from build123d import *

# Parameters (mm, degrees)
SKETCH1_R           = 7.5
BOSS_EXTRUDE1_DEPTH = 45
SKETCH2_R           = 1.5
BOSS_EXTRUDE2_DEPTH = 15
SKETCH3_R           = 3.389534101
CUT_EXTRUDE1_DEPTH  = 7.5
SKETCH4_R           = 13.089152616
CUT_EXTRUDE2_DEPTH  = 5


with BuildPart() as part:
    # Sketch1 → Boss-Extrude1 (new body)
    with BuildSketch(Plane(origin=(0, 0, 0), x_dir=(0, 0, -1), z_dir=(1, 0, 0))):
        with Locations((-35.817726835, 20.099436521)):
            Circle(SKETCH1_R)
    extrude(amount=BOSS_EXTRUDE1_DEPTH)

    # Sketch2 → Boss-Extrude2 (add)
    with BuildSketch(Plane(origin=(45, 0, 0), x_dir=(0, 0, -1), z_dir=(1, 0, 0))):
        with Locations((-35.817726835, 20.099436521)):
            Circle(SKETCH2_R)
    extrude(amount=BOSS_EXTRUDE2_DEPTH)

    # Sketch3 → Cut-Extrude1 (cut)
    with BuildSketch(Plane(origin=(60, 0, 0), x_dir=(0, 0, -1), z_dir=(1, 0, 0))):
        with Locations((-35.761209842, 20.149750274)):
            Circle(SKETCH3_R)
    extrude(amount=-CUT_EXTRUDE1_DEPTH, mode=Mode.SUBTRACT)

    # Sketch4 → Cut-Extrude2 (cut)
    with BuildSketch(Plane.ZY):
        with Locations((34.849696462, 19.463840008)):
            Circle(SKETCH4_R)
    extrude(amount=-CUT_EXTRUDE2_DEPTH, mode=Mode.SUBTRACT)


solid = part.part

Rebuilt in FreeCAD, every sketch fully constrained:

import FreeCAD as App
import Part
import Sketcher

doc = App.newDocument("Part")
body = doc.addObject("PartDesign::Body", "Body")

sketch1 = doc.addObject("Sketcher::SketchObject", "Sketch")
body.addObject(sketch1)
sketch1.AttachmentSupport = (doc.YZ_Plane, [""])
sketch1.MapMode = "FlatFace"
sketch1.addGeometry(Part.Circle(App.Vector(20.099437, 35.817727, 0), App.Vector(0, 0, 1), 7.5), False)
sketch1.addConstraint(Sketcher.Constraint("Diameter", 0, 15.0))
sketch1.addConstraint(Sketcher.Constraint("DistanceX", -1, 1, 0, 3, 20.099437))
sketch1.addConstraint(Sketcher.Constraint("DistanceY", -1, 1, 0, 3, 35.817727))
pad1 = doc.addObject("PartDesign::Pad", "Pad")
body.addObject(pad1)
pad1.Profile = sketch1
pad1.Length = 45

sketch2 = doc.addObject("Sketcher::SketchObject", "Sketch001")
body.addObject(sketch2)
sketch2.AttachmentSupport = (doc.YZ_Plane, [""])
sketch2.MapMode = "FlatFace"
sketch2.AttachmentOffset = App.Placement(App.Vector(0, 0, 45), App.Rotation())
sketch2.addGeometry(Part.Circle(App.Vector(20.099437, 35.817727, 0), App.Vector(0, 0, 1), 1.5), False)
sketch2.addConstraint(Sketcher.Constraint("Diameter", 0, 3.0))
sketch2.addConstraint(Sketcher.Constraint("DistanceX", -1, 1, 0, 3, 20.099437))
sketch2.addConstraint(Sketcher.Constraint("DistanceY", -1, 1, 0, 3, 35.817727))
pad2 = doc.addObject("PartDesign::Pad", "Pad001")
body.addObject(pad2)
pad2.Profile = sketch2
pad2.Length = 15

sketch3 = doc.addObject("Sketcher::SketchObject", "Sketch002")
body.addObject(sketch3)
sketch3.AttachmentSupport = (doc.YZ_Plane, [""])
sketch3.MapMode = "FlatFace"
sketch3.AttachmentOffset = App.Placement(App.Vector(0, 0, 60), App.Rotation())
sketch3.addGeometry(Part.Circle(App.Vector(20.14975, 35.76121, 0), App.Vector(0, 0, 1), 3.389534), False)
sketch3.addConstraint(Sketcher.Constraint("Diameter", 0, 6.779068))
sketch3.addConstraint(Sketcher.Constraint("DistanceX", -1, 1, 0, 3, 20.14975))
sketch3.addConstraint(Sketcher.Constraint("DistanceY", -1, 1, 0, 3, 35.76121))
pocket1 = doc.addObject("PartDesign::Pocket", "Pocket")
body.addObject(pocket1)
pocket1.Profile = sketch3
pocket1.Length = 7.5

sketch4 = doc.addObject("Sketcher::SketchObject", "Sketch003")
body.addObject(sketch4)
sketch4.AttachmentSupport = (doc.YZ_Plane, [""])
sketch4.MapMode = "FlatFace"
sketch4.addGeometry(Part.Circle(App.Vector(19.46384, 34.849696, 0), App.Vector(0, 0, 1), 13.089153), False)
sketch4.addConstraint(Sketcher.Constraint("Diameter", 0, 26.178305))
sketch4.addConstraint(Sketcher.Constraint("DistanceX", -1, 1, 0, 3, 19.46384))
sketch4.addConstraint(Sketcher.Constraint("DistanceY", -1, 1, 0, 3, 34.849696))
pocket2 = doc.addObject("PartDesign::Pocket", "Pocket001")
body.addObject(pocket2)
pocket2.Profile = sketch4
pocket2.Length = 5
pocket2.Reversed = True

doc.recompute()
